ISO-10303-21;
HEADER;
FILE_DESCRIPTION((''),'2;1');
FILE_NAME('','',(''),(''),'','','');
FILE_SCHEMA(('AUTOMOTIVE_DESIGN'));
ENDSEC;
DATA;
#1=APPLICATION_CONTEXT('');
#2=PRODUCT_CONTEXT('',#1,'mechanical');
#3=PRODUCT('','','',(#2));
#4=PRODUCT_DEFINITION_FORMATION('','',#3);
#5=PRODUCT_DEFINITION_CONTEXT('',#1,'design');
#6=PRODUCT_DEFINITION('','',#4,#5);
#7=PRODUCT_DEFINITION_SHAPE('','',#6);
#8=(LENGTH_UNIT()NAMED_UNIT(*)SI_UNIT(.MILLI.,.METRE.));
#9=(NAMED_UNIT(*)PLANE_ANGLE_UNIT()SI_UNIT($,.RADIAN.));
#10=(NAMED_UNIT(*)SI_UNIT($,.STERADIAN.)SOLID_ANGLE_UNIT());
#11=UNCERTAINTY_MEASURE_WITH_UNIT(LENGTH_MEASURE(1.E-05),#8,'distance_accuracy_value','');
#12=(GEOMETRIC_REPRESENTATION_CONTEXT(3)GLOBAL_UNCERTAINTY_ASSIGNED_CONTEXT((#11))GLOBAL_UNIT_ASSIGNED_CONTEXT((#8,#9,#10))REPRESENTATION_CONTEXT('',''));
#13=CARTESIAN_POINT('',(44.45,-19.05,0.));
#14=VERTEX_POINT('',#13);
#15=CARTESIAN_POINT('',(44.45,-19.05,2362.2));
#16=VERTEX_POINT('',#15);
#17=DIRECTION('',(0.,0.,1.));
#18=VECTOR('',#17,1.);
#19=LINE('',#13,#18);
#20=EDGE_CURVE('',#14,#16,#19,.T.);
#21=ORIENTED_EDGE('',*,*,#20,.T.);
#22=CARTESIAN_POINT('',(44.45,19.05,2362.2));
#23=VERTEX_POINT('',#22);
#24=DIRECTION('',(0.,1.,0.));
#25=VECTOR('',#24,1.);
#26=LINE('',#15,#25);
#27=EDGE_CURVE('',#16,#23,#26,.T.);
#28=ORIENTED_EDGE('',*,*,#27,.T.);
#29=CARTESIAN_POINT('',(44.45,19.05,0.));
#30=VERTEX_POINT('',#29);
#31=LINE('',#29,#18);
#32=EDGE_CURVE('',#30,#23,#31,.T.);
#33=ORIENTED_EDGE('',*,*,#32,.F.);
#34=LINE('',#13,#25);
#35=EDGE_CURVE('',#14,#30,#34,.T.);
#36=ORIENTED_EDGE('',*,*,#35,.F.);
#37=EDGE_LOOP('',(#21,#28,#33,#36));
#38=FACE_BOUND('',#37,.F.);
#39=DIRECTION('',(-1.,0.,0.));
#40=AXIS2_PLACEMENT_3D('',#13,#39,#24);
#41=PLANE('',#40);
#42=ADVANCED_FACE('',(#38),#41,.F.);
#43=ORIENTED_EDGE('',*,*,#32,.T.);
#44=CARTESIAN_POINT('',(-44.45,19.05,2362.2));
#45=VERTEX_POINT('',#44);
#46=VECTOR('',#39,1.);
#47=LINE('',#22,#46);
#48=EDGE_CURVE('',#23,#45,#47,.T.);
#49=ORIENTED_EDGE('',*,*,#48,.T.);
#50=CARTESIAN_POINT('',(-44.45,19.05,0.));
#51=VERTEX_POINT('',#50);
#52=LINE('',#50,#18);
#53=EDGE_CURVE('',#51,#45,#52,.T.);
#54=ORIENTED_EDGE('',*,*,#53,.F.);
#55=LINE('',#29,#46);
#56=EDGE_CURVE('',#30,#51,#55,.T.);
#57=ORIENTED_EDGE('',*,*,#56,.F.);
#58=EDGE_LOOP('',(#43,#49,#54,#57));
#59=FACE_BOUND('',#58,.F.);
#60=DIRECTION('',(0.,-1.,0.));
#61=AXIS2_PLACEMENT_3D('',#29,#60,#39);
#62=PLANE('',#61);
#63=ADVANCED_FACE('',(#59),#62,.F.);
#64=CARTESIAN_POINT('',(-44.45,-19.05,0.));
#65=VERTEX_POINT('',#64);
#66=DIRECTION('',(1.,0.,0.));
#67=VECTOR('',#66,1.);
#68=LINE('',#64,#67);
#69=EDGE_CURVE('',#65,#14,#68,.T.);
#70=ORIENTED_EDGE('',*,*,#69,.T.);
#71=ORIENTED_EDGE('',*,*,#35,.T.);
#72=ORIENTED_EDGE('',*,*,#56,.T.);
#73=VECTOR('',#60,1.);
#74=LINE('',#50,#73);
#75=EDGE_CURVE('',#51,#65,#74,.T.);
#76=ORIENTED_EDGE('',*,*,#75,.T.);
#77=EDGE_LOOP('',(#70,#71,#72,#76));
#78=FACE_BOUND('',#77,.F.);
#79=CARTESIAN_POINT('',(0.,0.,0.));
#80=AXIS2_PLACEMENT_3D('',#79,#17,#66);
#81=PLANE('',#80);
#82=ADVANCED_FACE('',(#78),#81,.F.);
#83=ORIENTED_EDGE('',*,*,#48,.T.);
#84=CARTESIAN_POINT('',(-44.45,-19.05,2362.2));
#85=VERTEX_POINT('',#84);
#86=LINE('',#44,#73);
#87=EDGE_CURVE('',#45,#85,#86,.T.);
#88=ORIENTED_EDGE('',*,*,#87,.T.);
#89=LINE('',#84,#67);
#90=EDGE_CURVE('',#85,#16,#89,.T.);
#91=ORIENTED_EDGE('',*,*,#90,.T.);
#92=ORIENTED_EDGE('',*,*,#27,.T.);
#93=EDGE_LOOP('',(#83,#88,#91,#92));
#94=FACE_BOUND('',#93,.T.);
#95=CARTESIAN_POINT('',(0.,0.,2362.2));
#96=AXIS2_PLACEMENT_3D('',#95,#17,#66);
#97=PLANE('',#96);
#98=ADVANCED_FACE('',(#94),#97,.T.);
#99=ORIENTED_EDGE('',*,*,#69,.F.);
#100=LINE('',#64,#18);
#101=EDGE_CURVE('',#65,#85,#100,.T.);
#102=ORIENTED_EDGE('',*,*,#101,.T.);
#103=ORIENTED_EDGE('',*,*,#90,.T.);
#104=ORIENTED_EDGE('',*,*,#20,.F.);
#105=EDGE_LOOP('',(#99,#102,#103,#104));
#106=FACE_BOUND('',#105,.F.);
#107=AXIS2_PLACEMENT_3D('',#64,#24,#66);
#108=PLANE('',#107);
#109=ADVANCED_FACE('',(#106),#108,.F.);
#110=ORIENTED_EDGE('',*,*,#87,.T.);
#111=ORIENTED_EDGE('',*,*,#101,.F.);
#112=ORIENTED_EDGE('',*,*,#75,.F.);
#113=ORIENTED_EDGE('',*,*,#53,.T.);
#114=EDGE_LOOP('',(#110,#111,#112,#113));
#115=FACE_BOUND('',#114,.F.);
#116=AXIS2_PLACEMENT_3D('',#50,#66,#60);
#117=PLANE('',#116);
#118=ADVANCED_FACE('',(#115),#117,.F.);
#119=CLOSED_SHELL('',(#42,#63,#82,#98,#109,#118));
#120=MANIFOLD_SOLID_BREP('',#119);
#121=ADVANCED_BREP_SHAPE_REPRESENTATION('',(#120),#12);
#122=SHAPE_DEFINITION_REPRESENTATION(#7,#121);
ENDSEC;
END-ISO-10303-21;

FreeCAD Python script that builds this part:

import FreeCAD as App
import Part
import Sketcher
Q = App.Units.Quantity


def add_polygon(sketch, points):
    """Adds a closed chain of lines whose ends are joined by coincident constraints."""
    first, n = sketch.GeometryCount, len(points)
    for a, b in zip(points, points[1:] + points[:1]):
        sketch.addGeometry(Part.LineSegment(App.Vector(*a, 0), App.Vector(*b, 0)), False)
    for i in range(n):
        sketch.addConstraint(Sketcher.Constraint("Coincident", first + i, 2, first + (i + 1) % n, 1))

doc = App.newDocument("Part")
body = doc.addObject("PartDesign::Body", "Body")

sketch1 = body.newObject("Sketcher::SketchObject", "Sketch")
sketch1.AttachmentSupport = (doc.getObject("XY_Plane"), [""])
sketch1.MapMode = "FlatFace"
add_polygon(sketch1, [(-44, 19), (-44, -19), (44, -19), (44, 19)])
sketch1.addConstraint([
    Sketcher.Constraint("Vertical", 0),
    Sketcher.Constraint("Horizontal", 1),
    Sketcher.Constraint("Vertical", 2),
    Sketcher.Constraint("Horizontal", 3),
    Sketcher.Constraint("Symmetric", 0, 2, 2, 2, -1, 1),
    Sketcher.Constraint("DistanceX", 1, 1, 1, 2, Q("3.5 in")),
    Sketcher.Constraint("DistanceY", 0, 2, 0, 1, Q("1.5 in")),
])
pad1 = body.newObject("PartDesign::Pad", "Pad")
pad1.Profile = sketch1
pad1.Length = Q("93 in")

doc.recompute()
